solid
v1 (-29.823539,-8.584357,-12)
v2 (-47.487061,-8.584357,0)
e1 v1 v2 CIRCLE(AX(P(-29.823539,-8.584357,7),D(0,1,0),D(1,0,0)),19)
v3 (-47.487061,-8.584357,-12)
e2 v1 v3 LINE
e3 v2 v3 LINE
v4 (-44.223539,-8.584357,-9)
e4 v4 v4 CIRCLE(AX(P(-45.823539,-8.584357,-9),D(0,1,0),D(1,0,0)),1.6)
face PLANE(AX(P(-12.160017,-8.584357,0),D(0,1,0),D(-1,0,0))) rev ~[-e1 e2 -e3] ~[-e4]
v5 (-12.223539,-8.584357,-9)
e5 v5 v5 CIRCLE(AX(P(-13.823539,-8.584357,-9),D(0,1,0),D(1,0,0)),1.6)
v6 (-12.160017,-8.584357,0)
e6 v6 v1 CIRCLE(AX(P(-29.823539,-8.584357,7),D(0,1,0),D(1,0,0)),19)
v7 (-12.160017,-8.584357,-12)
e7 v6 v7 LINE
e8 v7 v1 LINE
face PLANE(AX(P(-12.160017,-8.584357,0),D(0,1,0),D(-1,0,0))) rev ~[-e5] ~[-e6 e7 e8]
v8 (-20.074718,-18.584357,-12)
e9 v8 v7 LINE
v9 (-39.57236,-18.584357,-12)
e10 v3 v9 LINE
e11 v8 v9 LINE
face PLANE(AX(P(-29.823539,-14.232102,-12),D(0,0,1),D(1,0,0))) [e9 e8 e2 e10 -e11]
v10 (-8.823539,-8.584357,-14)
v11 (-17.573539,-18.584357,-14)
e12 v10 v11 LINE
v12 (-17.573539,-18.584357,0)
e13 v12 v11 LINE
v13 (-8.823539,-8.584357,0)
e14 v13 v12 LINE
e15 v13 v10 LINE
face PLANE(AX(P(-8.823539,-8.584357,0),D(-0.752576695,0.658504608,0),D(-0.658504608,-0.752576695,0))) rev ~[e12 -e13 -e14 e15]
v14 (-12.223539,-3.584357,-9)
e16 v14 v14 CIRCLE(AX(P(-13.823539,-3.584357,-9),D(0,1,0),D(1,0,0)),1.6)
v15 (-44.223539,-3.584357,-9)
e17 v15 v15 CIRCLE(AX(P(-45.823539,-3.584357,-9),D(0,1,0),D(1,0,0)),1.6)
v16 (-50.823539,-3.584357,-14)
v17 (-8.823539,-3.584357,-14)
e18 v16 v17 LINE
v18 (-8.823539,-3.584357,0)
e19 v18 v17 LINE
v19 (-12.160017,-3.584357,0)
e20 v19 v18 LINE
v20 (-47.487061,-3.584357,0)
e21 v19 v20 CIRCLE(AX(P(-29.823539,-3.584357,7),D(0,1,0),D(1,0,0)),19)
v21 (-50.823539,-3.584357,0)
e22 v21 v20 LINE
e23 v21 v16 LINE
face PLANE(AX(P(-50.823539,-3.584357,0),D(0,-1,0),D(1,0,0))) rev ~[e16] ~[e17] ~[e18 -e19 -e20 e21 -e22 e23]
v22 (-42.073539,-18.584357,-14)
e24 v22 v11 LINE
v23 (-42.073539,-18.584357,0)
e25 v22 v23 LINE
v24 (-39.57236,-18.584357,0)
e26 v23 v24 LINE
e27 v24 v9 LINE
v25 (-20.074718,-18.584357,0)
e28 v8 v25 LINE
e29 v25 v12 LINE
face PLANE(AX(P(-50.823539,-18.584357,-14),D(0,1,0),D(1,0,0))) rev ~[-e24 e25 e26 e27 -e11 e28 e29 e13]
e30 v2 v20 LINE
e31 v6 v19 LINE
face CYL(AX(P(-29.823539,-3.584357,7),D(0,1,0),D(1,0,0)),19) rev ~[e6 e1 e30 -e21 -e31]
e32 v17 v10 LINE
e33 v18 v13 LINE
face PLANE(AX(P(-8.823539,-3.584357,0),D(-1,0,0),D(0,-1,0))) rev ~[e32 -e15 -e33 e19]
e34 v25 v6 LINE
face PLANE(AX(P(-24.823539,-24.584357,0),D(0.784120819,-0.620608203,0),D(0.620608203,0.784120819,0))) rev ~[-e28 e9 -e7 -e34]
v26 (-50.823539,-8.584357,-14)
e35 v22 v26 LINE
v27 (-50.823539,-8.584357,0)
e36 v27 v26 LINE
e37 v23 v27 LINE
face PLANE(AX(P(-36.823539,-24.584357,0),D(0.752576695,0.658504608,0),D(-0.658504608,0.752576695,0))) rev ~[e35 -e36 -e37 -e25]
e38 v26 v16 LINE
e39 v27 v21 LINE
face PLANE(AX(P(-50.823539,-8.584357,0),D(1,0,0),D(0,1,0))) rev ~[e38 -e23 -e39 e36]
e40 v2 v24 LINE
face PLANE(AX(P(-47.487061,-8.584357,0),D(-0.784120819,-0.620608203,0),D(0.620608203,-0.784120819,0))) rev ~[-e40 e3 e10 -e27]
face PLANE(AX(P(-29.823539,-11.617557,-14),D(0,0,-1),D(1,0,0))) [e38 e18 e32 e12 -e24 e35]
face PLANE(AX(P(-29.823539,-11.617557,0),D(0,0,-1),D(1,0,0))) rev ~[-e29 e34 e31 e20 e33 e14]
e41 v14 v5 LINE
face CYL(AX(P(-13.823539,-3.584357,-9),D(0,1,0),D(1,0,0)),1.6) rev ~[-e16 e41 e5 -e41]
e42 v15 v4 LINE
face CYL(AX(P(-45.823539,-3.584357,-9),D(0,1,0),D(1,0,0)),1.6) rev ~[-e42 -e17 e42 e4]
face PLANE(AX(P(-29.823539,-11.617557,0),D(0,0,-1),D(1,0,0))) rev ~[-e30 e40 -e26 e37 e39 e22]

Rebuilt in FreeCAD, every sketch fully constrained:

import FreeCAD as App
import Part
import Sketcher
from FreeCAD import Vector


def add_polygon(sketch, points):
    """Adds a closed chain of lines whose ends are joined by coincident constraints."""
    first, n = sketch.GeometryCount, len(points)
    for a, b in zip(points, points[1:] + points[:1]):
        sketch.addGeometry(Part.LineSegment(App.Vector(*a, 0), App.Vector(*b, 0)), False)
    for i in range(n):
        sketch.addConstraint(Sketcher.Constraint("Coincident", first + i, 2, first + (i + 1) % n, 1))

doc = App.newDocument("Part")
params = doc.addObject("Spreadsheet::Sheet", "Params")
for row, (alias, value) in enumerate([
    ("sketch1_width", "42 mm"),
    ("sketch1_width2", "14 mm"),
    ("sketch1_height", "5 mm"),
    ("pad1_length", "14 mm"),
    ("sketch2_diameter", "38 mm"),
    ("pocket1_length", "5 mm"),
    ("sketch3_width", "10 mm"),
    ("pocket2_length", "12 mm"),
    ("sketch4_diameter", "3.2 mm"),
    ("pocket3_length", "5 mm"),
    ("sketch5_width", "42 mm"),
    ("sketch5_height", "8 mm"),
    ("pocket4_length", "14 mm"),
], start=1):
    params.set(f"A{row}", alias)
    params.set(f"B{row}", "=" + value)
    params.setAlias(f"B{row}", alias)

body = doc.addObject("PartDesign::Body", "Body")

# Sketch on XY plane
sketch1 = body.newObject("Sketcher::SketchObject", "Sketch")
sketch1.AttachmentSupport = (doc.getObject("XY_Plane"), [""])
sketch1.MapMode = "FlatFace"
add_polygon(sketch1, [(-51, -4), (-9, -4), (-9, -9), (-23, -25), (-37, -25), (-51, -9)])  # lines 0-5
sketch1.addConstraint([
    Sketcher.Constraint("Horizontal", 0),
    Sketcher.Constraint("Vertical", 1),
    Sketcher.Constraint("Horizontal", 3),
    Sketcher.Constraint("Vertical", 5),
    Sketcher.Constraint("Horizontal", 1, 2, 4, 2),
    Sketcher.Constraint("Equal", 2, 4),
    Sketcher.Constraint("DistanceX", 0, 1, 0, 2, 42.0),
    Sketcher.Constraint("DistanceX", 3, 2, 3, 1, 14.0),
    Sketcher.Constraint("DistanceY", 1, 2, 1, 1, 5.0),
    Sketcher.Constraint("DistanceY", 2, 2, 1, 2, 16.0),
    Sketcher.Constraint("DistanceX", 0, 2, -1, 1, 8.823539),
    Sketcher.Constraint("DistanceY", 0, 2, -1, 1, 3.584357),
])
sketch1.setExpression("Constraints[12]", "Params.sketch1_width")
sketch1.setExpression("Constraints[13]", "Params.sketch1_width2")
sketch1.setExpression("Constraints[14]", "Params.sketch1_height")
pad1 = body.newObject("PartDesign::Pad", "Pad")
pad1.Profile = sketch1
pad1.setExpression("Length", "Params.pad1_length")
pad1.Reversed = True

# Sketch on XZ plane
sketch2 = body.newObject("Sketcher::SketchObject", "Sketch001")
sketch2.AttachmentSupport = (doc.getObject("XZ_Plane"), [""])
sketch2.MapMode = "FlatFace"
sketch2.AttachmentOffset = App.Placement(Vector(0, 0, 3.584357), App.Rotation())
sketch2.addGeometry(Part.Circle(Vector(-30, 7, 0), Vector(0, 0, 1), 19), False)
sketch2.addConstraint([
    Sketcher.Constraint("Diameter", 0, 38.0),
    Sketcher.Constraint("DistanceY", -1, 1, 0, 3, 7.0),
    Sketcher.Constraint("DistanceX", 0, 3, -1, 1, 29.823539),
])
sketch2.setExpression("Constraints[0]", "Params.sketch2_diameter")
pocket1 = body.newObject("PartDesign::Pocket", "Pocket")
pocket1.Profile = sketch2
pocket1.setExpression("Length", "Params.pocket1_length")
pocket1.Reversed = True

# Sketch on XY plane
sketch3 = body.newObject("Sketcher::SketchObject", "Sketch002")
sketch3.AttachmentSupport = (doc.getObject("XY_Plane"), [""])
sketch3.MapMode = "FlatFace"
add_polygon(sketch3, [(-47, -9), (-35, -25), (-25, -25), (-12, -9)])  # lines 0-3
sketch3.addConstraint([
    Sketcher.Constraint("Horizontal", 1),
    Sketcher.Constraint("Horizontal", 3),
    Sketcher.Constraint("Equal", 0, 2),
    Sketcher.Constraint("DistanceX", 1, 1, 1, 2, 10.0),
    Sketcher.Constraint("DistanceY", 1, 2, 2, 2, 16.0),
    Sketcher.Constraint("Distance", 0, 20.405019),
    Sketcher.Constraint("DistanceX", 0, 2, -1, 1, 34.823539),
    Sketcher.Constraint("DistanceY", 0, 2, -1, 1, 24.584357),
])
sketch3.setExpression("Constraints[7]", "Params.sketch3_width")
pocket2 = body.newObject("PartDesign::Pocket", "Pocket001")
pocket2.Profile = sketch3
pocket2.setExpression("Length", "Params.pocket2_length")

# Sketch on XZ plane
sketch4 = body.newObject("Sketcher::SketchObject", "Sketch003")
sketch4.AttachmentSupport = (doc.getObject("XZ_Plane"), [""])
sketch4.MapMode = "FlatFace"
sketch4.AttachmentOffset = App.Placement(Vector(0, 0, 3.584357), App.Rotation())
sketch4.addGeometry([
    Part.Circle(Vector(-45.8, -9, 0), Vector(0, 0, 1), 1.6),
    Part.Circle(Vector(-13.8, -9, 0), Vector(0, 0, 1), 1.6),
], False)
sketch4.addConstraint([
    Sketcher.Constraint("Equal", 0, 1),
    Sketcher.Constraint("Horizontal", 0, 3, 1, 3),
    Sketcher.Constraint("Diameter", 0, 3.2),
    Sketcher.Constraint("DistanceY", 0, 3, -1, 1, 9.0),
    Sketcher.Constraint("DistanceX", 0, 3, 1, 3, 32.0),
    Sketcher.Constraint("DistanceX", 0, 3, -1, 1, 45.823539),
])
sketch4.setExpression("Constraints[2]", "Params.sketch4_diameter")
pocket3 = body.newObject("PartDesign::Pocket", "Pocket002")
pocket3.Profile = sketch4
pocket3.setExpression("Length", "Params.pocket3_length")
pocket3.Reversed = True

# Sketch on XY plane
sketch5 = body.newObject("Sketcher::SketchObject", "Sketch004")
sketch5.AttachmentSupport = (doc.getObject("XY_Plane"), [""])
sketch5.MapMode = "FlatFace"
sketch5.AttachmentOffset = App.Placement(Vector(0, 0, -14), App.Rotation())
add_polygon(sketch5, [(-51, -27), (-51, -19), (-9, -19), (-9, -27)])  # lines 0-3
sketch5.addConstraint([
    Sketcher.Constraint("Vertical", 0),
    Sketcher.Constraint("Horizontal", 1),
    Sketcher.Constraint("Vertical", 2),
    Sketcher.Constraint("Horizontal", 3),
    Sketcher.Constraint("DistanceX", 1, 1, 1, 2, 42.0),
    Sketcher.Constraint("DistanceY", 0, 1, 0, 2, 8.0),
    Sketcher.Constraint("DistanceX", 0, 2, -1, 1, 50.823539),
    Sketcher.Constraint("DistanceY", 0, 2, -1, 1, 18.584357),
])
sketch5.setExpression("Constraints[8]", "Params.sketch5_width")
sketch5.setExpression("Constraints[9]", "Params.sketch5_height")
pocket4 = body.newObject("PartDesign::Pocket", "Pocket003")
pocket4.Profile = sketch5
pocket4.setExpression("Length", "Params.pocket4_length")
pocket4.Reversed = True

doc.recompute()
